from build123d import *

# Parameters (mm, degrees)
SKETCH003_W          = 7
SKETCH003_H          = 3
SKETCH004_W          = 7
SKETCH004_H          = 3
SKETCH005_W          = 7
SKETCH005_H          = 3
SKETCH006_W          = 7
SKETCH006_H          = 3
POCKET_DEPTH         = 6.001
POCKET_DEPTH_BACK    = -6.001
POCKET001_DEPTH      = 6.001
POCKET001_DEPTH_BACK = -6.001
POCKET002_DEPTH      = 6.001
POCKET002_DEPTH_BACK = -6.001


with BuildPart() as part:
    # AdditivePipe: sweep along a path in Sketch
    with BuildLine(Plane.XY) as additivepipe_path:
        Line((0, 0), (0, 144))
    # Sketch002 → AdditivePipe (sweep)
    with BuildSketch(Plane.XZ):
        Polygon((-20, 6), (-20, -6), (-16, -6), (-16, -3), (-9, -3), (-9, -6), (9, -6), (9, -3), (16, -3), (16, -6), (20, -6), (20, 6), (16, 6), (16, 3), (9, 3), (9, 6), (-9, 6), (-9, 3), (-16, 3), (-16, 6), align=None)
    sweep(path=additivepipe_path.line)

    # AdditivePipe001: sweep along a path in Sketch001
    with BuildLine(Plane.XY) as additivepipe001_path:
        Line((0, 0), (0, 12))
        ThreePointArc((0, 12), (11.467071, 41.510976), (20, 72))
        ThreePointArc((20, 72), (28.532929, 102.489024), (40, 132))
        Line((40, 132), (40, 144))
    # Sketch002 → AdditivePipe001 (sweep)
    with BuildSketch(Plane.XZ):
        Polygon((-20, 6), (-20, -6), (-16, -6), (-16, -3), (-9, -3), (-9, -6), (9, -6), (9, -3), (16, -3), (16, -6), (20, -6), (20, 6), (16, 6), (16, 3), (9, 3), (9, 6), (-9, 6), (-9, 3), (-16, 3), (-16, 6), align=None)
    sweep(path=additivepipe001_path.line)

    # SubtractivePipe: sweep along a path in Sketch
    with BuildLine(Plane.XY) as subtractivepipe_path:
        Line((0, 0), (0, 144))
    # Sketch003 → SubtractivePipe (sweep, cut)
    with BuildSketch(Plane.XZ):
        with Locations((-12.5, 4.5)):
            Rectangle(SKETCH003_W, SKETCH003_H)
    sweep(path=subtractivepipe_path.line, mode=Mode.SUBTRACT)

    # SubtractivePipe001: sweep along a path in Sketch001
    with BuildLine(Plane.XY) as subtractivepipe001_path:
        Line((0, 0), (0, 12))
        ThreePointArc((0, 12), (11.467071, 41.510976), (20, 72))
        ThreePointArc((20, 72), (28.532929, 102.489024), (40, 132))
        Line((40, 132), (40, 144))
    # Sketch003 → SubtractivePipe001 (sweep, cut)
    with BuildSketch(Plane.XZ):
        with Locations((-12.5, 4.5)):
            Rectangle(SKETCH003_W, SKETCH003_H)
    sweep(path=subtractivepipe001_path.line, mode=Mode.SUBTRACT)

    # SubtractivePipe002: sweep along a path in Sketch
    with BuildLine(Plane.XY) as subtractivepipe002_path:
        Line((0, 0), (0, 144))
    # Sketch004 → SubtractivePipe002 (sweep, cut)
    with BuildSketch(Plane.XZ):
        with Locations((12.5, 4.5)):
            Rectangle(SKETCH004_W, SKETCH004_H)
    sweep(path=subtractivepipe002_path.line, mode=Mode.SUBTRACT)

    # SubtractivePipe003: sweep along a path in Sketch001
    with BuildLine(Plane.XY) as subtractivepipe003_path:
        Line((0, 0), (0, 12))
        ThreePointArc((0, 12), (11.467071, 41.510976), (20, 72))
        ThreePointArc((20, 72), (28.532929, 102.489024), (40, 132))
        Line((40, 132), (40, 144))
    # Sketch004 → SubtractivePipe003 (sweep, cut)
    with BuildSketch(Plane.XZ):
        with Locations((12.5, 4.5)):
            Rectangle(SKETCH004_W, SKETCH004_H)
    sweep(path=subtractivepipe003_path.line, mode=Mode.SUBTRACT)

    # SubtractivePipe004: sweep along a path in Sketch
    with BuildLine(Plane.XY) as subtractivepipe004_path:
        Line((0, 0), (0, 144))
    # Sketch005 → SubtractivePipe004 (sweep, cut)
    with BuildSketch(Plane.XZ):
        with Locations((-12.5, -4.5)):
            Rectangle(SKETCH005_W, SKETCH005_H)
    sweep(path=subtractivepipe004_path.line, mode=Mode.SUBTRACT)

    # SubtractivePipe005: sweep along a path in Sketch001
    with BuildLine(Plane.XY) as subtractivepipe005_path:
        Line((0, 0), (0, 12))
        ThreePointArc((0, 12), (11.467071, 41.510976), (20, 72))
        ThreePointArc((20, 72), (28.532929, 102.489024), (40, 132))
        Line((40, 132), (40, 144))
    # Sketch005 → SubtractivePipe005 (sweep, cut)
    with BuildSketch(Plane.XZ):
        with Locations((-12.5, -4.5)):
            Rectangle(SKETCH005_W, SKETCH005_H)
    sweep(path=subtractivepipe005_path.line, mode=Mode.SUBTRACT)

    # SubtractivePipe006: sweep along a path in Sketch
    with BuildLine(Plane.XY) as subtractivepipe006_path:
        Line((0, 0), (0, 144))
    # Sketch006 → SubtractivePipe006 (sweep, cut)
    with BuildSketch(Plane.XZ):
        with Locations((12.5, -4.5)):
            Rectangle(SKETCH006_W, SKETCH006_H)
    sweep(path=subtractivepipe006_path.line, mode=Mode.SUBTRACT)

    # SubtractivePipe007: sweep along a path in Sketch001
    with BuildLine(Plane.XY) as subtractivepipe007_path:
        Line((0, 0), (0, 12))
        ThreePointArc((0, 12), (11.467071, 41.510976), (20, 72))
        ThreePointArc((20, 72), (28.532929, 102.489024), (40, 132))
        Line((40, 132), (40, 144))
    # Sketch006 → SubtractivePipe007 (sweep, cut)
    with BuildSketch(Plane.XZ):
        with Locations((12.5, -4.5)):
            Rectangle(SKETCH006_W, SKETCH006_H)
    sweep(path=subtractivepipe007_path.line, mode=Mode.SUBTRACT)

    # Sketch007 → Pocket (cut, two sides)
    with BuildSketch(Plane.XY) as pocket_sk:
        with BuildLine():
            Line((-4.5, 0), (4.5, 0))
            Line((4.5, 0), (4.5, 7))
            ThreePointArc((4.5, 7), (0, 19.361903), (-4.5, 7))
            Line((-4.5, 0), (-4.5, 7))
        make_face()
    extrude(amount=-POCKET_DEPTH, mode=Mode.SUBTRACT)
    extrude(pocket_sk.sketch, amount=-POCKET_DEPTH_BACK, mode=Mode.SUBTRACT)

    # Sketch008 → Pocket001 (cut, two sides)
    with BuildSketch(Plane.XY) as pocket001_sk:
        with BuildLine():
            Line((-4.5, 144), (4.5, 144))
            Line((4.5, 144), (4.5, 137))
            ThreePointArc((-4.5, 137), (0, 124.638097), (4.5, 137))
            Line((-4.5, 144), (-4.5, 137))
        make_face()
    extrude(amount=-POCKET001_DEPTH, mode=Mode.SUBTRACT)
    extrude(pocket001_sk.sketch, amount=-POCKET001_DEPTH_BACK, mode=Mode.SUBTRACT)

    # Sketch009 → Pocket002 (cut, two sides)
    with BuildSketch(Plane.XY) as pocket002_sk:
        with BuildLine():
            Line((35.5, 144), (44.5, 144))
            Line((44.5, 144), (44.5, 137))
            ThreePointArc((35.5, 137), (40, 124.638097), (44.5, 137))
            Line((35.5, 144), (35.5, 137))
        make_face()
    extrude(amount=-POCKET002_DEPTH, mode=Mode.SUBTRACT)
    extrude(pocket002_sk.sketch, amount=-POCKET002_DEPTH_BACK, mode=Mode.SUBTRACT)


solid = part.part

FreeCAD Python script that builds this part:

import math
import FreeCAD as App
import Part
import Sketcher

V = App.Vector

doc = App.newDocument("Part")
body = doc.addObject("PartDesign::Body", "Body")

# Sketch on XZ plane
sketch1 = doc.addObject("Sketcher::SketchObject", "Sketch")
body.addObject(sketch1)
sketch1.AttachmentSupport = (doc.XZ_Plane, [""])
sketch1.MapMode = "FlatFace"
sketch1.addGeometry(Part.LineSegment(V(-20, 6, 0), V(-20, -6, 0)), False)
sketch1.addGeometry(Part.LineSegment(V(-20, -6, 0), V(-16, -6, 0)), False)
sketch1.addGeometry(Part.LineSegment(V(-16, -6, 0), V(-16, -3, 0)), False)
sketch1.addGeometry(Part.LineSegment(V(-16, -3, 0), V(-9, -3, 0)), False)
sketch1.addGeometry(Part.LineSegment(V(-9, -3, 0), V(-9, -6, 0)), False)
sketch1.addGeometry(Part.LineSegment(V(-9, -6, 0), V(9, -6, 0)), False)
sketch1.addGeometry(Part.LineSegment(V(9, -6, 0), V(9, -3, 0)), False)
sketch1.addGeometry(Part.LineSegment(V(9, -3, 0), V(16, -3, 0)), False)
sketch1.addGeometry(Part.LineSegment(V(16, -3, 0), V(16, -6, 0)), False)
sketch1.addGeometry(Part.LineSegment(V(16, -6, 0), V(20, -6, 0)), False)
sketch1.addGeometry(Part.LineSegment(V(20, -6, 0), V(20, 6, 0)), False)
sketch1.addGeometry(Part.LineSegment(V(20, 6, 0), V(16, 6, 0)), False)
sketch1.addGeometry(Part.LineSegment(V(16, 6, 0), V(16, 3, 0)), False)
sketch1.addGeometry(Part.LineSegment(V(16, 3, 0), V(9, 3, 0)), False)
sketch1.addGeometry(Part.LineSegment(V(9, 3, 0), V(9, 6, 0)), False)
sketch1.addGeometry(Part.LineSegment(V(9, 6, 0), V(-9, 6, 0)), False)
sketch1.addGeometry(Part.LineSegment(V(-9, 6, 0), V(-9, 3, 0)), False)
sketch1.addGeometry(Part.LineSegment(V(-9, 3, 0), V(-16, 3, 0)), False)
sketch1.addGeometry(Part.LineSegment(V(-16, 3, 0), V(-16, 6, 0)), False)
sketch1.addGeometry(Part.LineSegment(V(-16, 6, 0), V(-20, 6, 0)), False)
sketch1.addConstraint(Sketcher.Constraint("Coincident", 0, 2, 1, 1))
sketch1.addConstraint(Sketcher.Constraint("Coincident", 1, 2, 2, 1))
sketch1.addConstraint(Sketcher.Constraint("Coincident", 2, 2, 3, 1))
sketch1.addConstraint(Sketcher.Constraint("Coincident", 3, 2, 4, 1))
sketch1.addConstraint(Sketcher.Constraint("Coincident", 4, 2, 5, 1))
sketch1.addConstraint(Sketcher.Constraint("Coincident", 5, 2, 6, 1))
sketch1.addConstraint(Sketcher.Constraint("Coincident", 6, 2, 7, 1))
sketch1.addConstraint(Sketcher.Constraint("Coincident", 7, 2, 8, 1))
sketch1.addConstraint(Sketcher.Constraint("Coincident", 8, 2, 9, 1))
sketch1.addConstraint(Sketcher.Constraint("Coincident", 9, 2, 10, 1))
sketch1.addConstraint(Sketcher.Constraint("Coincident", 10, 2, 11, 1))
sketch1.addConstraint(Sketcher.Constraint("Coincident", 11, 2, 12, 1))
sketch1.addConstraint(Sketcher.Constraint("Coincident", 12, 2, 13, 1))
sketch1.addConstraint(Sketcher.Constraint("Coincident", 13, 2, 14, 1))
sketch1.addConstraint(Sketcher.Constraint("Coincident", 14, 2, 15, 1))
sketch1.addConstraint(Sketcher.Constraint("Coincident", 15, 2, 16, 1))
sketch1.addConstraint(Sketcher.Constraint("Coincident", 16, 2, 17, 1))
sketch1.addConstraint(Sketcher.Constraint("Coincident", 17, 2, 18, 1))
sketch1.addConstraint(Sketcher.Constraint("Coincident", 18, 2, 19, 1))
sketch1.addConstraint(Sketcher.Constraint("Coincident", 19, 2, 0, 1))
sketch1.addConstraint(Sketcher.Constraint("Vertical", 0))
sketch1.addConstraint(Sketcher.Constraint("Horizontal", 1))
sketch1.addConstraint(Sketcher.Constraint("Vertical", 2))
sketch1.addConstraint(Sketcher.Constraint("Horizontal", 3))
sketch1.addConstraint(Sketcher.Constraint("Vertical", 4))
sketch1.addConstraint(Sketcher.Constraint("Horizontal", 5))
sketch1.addConstraint(Sketcher.Constraint("Vertical", 6))
sketch1.addConstraint(Sketcher.Constraint("Horizontal", 7))
sketch1.addConstraint(Sketcher.Constraint("Vertical", 8))
sketch1.addConstraint(Sketcher.Constraint("Horizontal", 9))
sketch1.addConstraint(Sketcher.Constraint("Vertical", 10))
sketch1.addConstraint(Sketcher.Constraint("Horizontal", 11))
sketch1.addConstraint(Sketcher.Constraint("Vertical", 12))
sketch1.addConstraint(Sketcher.Constraint("Horizontal", 13))
sketch1.addConstraint(Sketcher.Constraint("Vertical", 14))
sketch1.addConstraint(Sketcher.Constraint("Horizontal", 15))
sketch1.addConstraint(Sketcher.Constraint("Vertical", 16))
sketch1.addConstraint(Sketcher.Constraint("Horizontal", 17))
sketch1.addConstraint(Sketcher.Constraint("Vertical", 18))
sketch1.addConstraint(Sketcher.Constraint("Horizontal", 19))
sketch1.addConstraint(Sketcher.Constraint("Symmetric", 0, 2, 10, 2, -1, 1))
sketch1.addConstraint(Sketcher.Constraint("Symmetric", 2, 2, 12, 2, -1, 1))
sketch1.addConstraint(Sketcher.Constraint("Symmetric", 4, 2, 14, 2, -1, 1))
sketch1.addConstraint(Sketcher.Constraint("Symmetric", 6, 2, 16, 2, -1, 1))
sketch1.addConstraint(Sketcher.Constraint("Symmetric", 8, 2, 18, 2, -1, 1))
sketch1.addConstraint(Sketcher.Constraint("Symmetric", 3, 2, 6, 2, -2))
sketch1.addConstraint(Sketcher.Constraint("Symmetric", 1, 2, 8, 2, -2))
sketch1.addConstraint(Sketcher.Constraint("Horizontal", 1, 2, 4, 2))
sketch1.addConstraint(Sketcher.Constraint("DistanceX", 1, 1, 1, 2, 4.0))
sketch1.addConstraint(Sketcher.Constraint("DistanceX", 3, 1, 3, 2, 7.0))
sketch1.addConstraint(Sketcher.Constraint("DistanceX", 5, 1, 5, 2, 18.0))
sketch1.addConstraint(Sketcher.Constraint("DistanceY", 0, 2, 0, 1, 12.0))
sketch1.addConstraint(Sketcher.Constraint("DistanceY", 2, 1, 2, 2, 3.0))

# Sketch on XY plane
sketch2 = doc.addObject("Sketcher::SketchObject", "Sketch001")
body.addObject(sketch2)
sketch2.AttachmentSupport = (doc.XY_Plane, [""])
sketch2.MapMode = "FlatFace"
sketch2.addGeometry(Part.LineSegment(V(0, 0, 0), V(0, 144, 0)), False)
sketch2.addConstraint(Sketcher.Constraint("Vertical", 0))
sketch2.addConstraint(Sketcher.Constraint("Coincident", 0, 1, -1, 1))
sketch2.addConstraint(Sketcher.Constraint("DistanceY", 0, 1, 0, 2, 144.0))
doc.recompute()

additivepipe = doc.addObject("PartDesign::AdditivePipe", "AdditivePipe")
body.addObject(additivepipe)
additivepipe.Profile = sketch1
additivepipe.Spine = (sketch2, ["Edge1"])

# Sketch on XZ plane
sketch3 = doc.addObject("Sketcher::SketchObject", "Sketch002")
body.addObject(sketch3)
sketch3.AttachmentSupport = (doc.XZ_Plane, [""])
sketch3.MapMode = "FlatFace"
sketch3.addGeometry(Part.LineSegment(V(-20, 6, 0), V(-20, -6, 0)), False)
sketch3.addGeometry(Part.LineSegment(V(-20, -6, 0), V(-16, -6, 0)), False)
sketch3.addGeometry(Part.LineSegment(V(-16, -6, 0), V(-16, -3, 0)), False)
sketch3.addGeometry(Part.LineSegment(V(-16, -3, 0), V(-9, -3, 0)), False)
sketch3.addGeometry(Part.LineSegment(V(-9, -3, 0), V(-9, -6, 0)), False)
sketch3.addGeometry(Part.LineSegment(V(-9, -6, 0), V(9, -6, 0)), False)
sketch3.addGeometry(Part.LineSegment(V(9, -6, 0), V(9, -3, 0)), False)
sketch3.addGeometry(Part.LineSegment(V(9, -3, 0), V(16, -3, 0)), False)
sketch3.addGeometry(Part.LineSegment(V(16, -3, 0), V(16, -6, 0)), False)
sketch3.addGeometry(Part.LineSegment(V(16, -6, 0), V(20, -6, 0)), False)
sketch3.addGeometry(Part.LineSegment(V(20, -6, 0), V(20, 6, 0)), False)
sketch3.addGeometry(Part.LineSegment(V(20, 6, 0), V(16, 6, 0)), False)
sketch3.addGeometry(Part.LineSegment(V(16, 6, 0), V(16, 3, 0)), False)
sketch3.addGeometry(Part.LineSegment(V(16, 3, 0), V(9, 3, 0)), False)
sketch3.addGeometry(Part.LineSegment(V(9, 3, 0), V(9, 6, 0)), False)
sketch3.addGeometry(Part.LineSegment(V(9, 6, 0), V(-9, 6, 0)), False)
sketch3.addGeometry(Part.LineSegment(V(-9, 6, 0), V(-9, 3, 0)), False)
sketch3.addGeometry(Part.LineSegment(V(-9, 3, 0), V(-16, 3, 0)), False)
sketch3.addGeometry(Part.LineSegment(V(-16, 3, 0), V(-16, 6, 0)), False)
sketch3.addGeometry(Part.LineSegment(V(-16, 6, 0), V(-20, 6, 0)), False)
sketch3.addConstraint(Sketcher.Constraint("Coincident", 0, 2, 1, 1))
sketch3.addConstraint(Sketcher.Constraint("Coincident", 1, 2, 2, 1))
sketch3.addConstraint(Sketcher.Constraint("Coincident", 2, 2, 3, 1))
sketch3.addConstraint(Sketcher.Constraint("Coincident", 3, 2, 4, 1))
sketch3.addConstraint(Sketcher.Constraint("Coincident", 4, 2, 5, 1))
sketch3.addConstraint(Sketcher.Constraint("Coincident", 5, 2, 6, 1))
sketch3.addConstraint(Sketcher.Constraint("Coincident", 6, 2, 7, 1))
sketch3.addConstraint(Sketcher.Constraint("Coincident", 7, 2, 8, 1))
sketch3.addConstraint(Sketcher.Constraint("Coincident", 8, 2, 9, 1))
sketch3.addConstraint(Sketcher.Constraint("Coincident", 9, 2, 10, 1))
sketch3.addConstraint(Sketcher.Constraint("Coincident", 10, 2, 11, 1))
sketch3.addConstraint(Sketcher.Constraint("Coincident", 11, 2, 12, 1))
sketch3.addConstraint(Sketcher.Constraint("Coincident", 12, 2, 13, 1))
sketch3.addConstraint(Sketcher.Constraint("Coincident", 13, 2, 14, 1))
sketch3.addConstraint(Sketcher.Constraint("Coincident", 14, 2, 15, 1))
sketch3.addConstraint(Sketcher.Constraint("Coincident", 15, 2, 16, 1))
sketch3.addConstraint(Sketcher.Constraint("Coincident", 16, 2, 17, 1))
sketch3.addConstraint(Sketcher.Constraint("Coincident", 17, 2, 18, 1))
sketch3.addConstraint(Sketcher.Constraint("Coincident", 18, 2, 19, 1))
sketch3.addConstraint(Sketcher.Constraint("Coincident", 19, 2, 0, 1))
sketch3.addConstraint(Sketcher.Constraint("Vertical", 0))
sketch3.addConstraint(Sketcher.Constraint("Horizontal", 1))
sketch3.addConstraint(Sketcher.Constraint("Vertical", 2))
sketch3.addConstraint(Sketcher.Constraint("Horizontal", 3))
sketch3.addConstraint(Sketcher.Constraint("Vertical", 4))
sketch3.addConstraint(Sketcher.Constraint("Horizontal", 5))
sketch3.addConstraint(Sketcher.Constraint("Vertical", 6))
sketch3.addConstraint(Sketcher.Constraint("Horizontal", 7))
sketch3.addConstraint(Sketcher.Constraint("Vertical", 8))
sketch3.addConstraint(Sketcher.Constraint("Horizontal", 9))
sketch3.addConstraint(Sketcher.Constraint("Vertical", 10))
sketch3.addConstraint(Sketcher.Constraint("Horizontal", 11))
sketch3.addConstraint(Sketcher.Constraint("Vertical", 12))
sketch3.addConstraint(Sketcher.Constraint("Horizontal", 13))
sketch3.addConstraint(Sketcher.Constraint("Vertical", 14))
sketch3.addConstraint(Sketcher.Constraint("Horizontal", 15))
sketch3.addConstraint(Sketcher.Constraint("Vertical", 16))
sketch3.addConstraint(Sketcher.Constraint("Horizontal", 17))
sketch3.addConstraint(Sketcher.Constraint("Vertical", 18))
sketch3.addConstraint(Sketcher.Constraint("Horizontal", 19))
sketch3.addConstraint(Sketcher.Constraint("Symmetric", 0, 2, 10, 2, -1, 1))
sketch3.addConstraint(Sketcher.Constraint("Symmetric", 2, 2, 12, 2, -1, 1))
sketch3.addConstraint(Sketcher.Constraint("Symmetric", 4, 2, 14, 2, -1, 1))
sketch3.addConstraint(Sketcher.Constraint("Symmetric", 6, 2, 16, 2, -1, 1))
sketch3.addConstraint(Sketcher.Constraint("Symmetric", 8, 2, 18, 2, -1, 1))
sketch3.addConstraint(Sketcher.Constraint("Symmetric", 3, 2, 6, 2, -2))
sketch3.addConstraint(Sketcher.Constraint("Symmetric", 1, 2, 8, 2, -2))
sketch3.addConstraint(Sketcher.Constraint("Horizontal", 1, 2, 4, 2))
sketch3.addConstraint(Sketcher.Constraint("DistanceX", 1, 1, 1, 2, 4.0))
sketch3.addConstraint(Sketcher.Constraint("DistanceX", 3, 1, 3, 2, 7.0))
sketch3.addConstraint(Sketcher.Constraint("DistanceX", 5, 1, 5, 2, 18.0))
sketch3.addConstraint(Sketcher.Constraint("DistanceY", 0, 2, 0, 1, 12.0))
sketch3.addConstraint(Sketcher.Constraint("DistanceY", 2, 1, 2, 2, 3.0))

# Sketch on XY plane
sketch4 = doc.addObject("Sketcher::SketchObject", "Sketch003")
body.addObject(sketch4)
sketch4.AttachmentSupport = (doc.XY_Plane, [""])
sketch4.MapMode = "FlatFace"
sketch4.addGeometry(Part.LineSegment(V(0, 0, 0), V(0, 12, 0)), False)
sketch4.addGeometry(Part.ArcOfCircle(Part.Circle(V(-296, 144, 0), V(0, 0, 1), 324), math.radians(-24.03), math.radians(-12.84)), False)
sketch4.addGeometry(Part.ArcOfCircle(Part.Circle(V(336, 0, 0), V(0, 0, 1), 324), math.radians(155.97), math.radians(167.16)), False)
sketch4.addGeometry(Part.LineSegment(V(40, 132, 0), V(40, 144, 0)), False)
sketch4.addConstraint(Sketcher.Constraint("Coincident", 0, 2, 1, 1))
sketch4.addConstraint(Sketcher.Constraint("Tangent", 1, 2, 2, 2))
sketch4.addConstraint(Sketcher.Constraint("Coincident", 2, 1, 3, 1))
sketch4.addConstraint(Sketcher.Constraint("Vertical", 0))
sketch4.addConstraint(Sketcher.Constraint("Vertical", 3))
sketch4.addConstraint(Sketcher.Constraint("Coincident", 0, 1, -1, 1))
sketch4.addConstraint(Sketcher.Constraint("Equal", 1, 2))
sketch4.addConstraint(Sketcher.Constraint("Equal", 0, 3))
sketch4.addConstraint(Sketcher.Constraint("DistanceY", 0, 1, 0, 2, 12.0))
sketch4.addConstraint(Sketcher.Constraint("DistanceX", -1, 1, 1, 2, 20.0))
sketch4.addConstraint(Sketcher.Constraint("DistanceX", -1, 1, 2, 1, 40.0))
sketch4.addConstraint(Sketcher.Constraint("DistanceY", -1, 1, 3, 2, 144.0))
sketch4.addConstraint(Sketcher.Constraint("Radius", 1, 324.098818))
doc.recompute()

additivepipe2 = doc.addObject("PartDesign::AdditivePipe", "AdditivePipe001")
body.addObject(additivepipe2)
additivepipe2.Profile = sketch3
additivepipe2.Spine = (sketch4, ["Edge1", "Edge2", "Edge3", "Edge4"])

# Sketch on XZ plane
sketch5 = doc.addObject("Sketcher::SketchObject", "Sketch004")
body.addObject(sketch5)
sketch5.AttachmentSupport = (doc.XZ_Plane, [""])
sketch5.MapMode = "FlatFace"
sketch5.addGeometry(Part.LineSegment(V(-16, 6, 0), V(-16, 3, 0)), False)
sketch5.addGeometry(Part.LineSegment(V(-16, 3, 0), V(-9, 3, 0)), False)
sketch5.addGeometry(Part.LineSegment(V(-9, 3, 0), V(-9, 6, 0)), False)
sketch5.addGeometry(Part.LineSegment(V(-9, 6, 0), V(-16, 6, 0)), False)
sketch5.addConstraint(Sketcher.Constraint("Coincident", 0, 2, 1, 1))
sketch5.addConstraint(Sketcher.Constraint("Coincident", 1, 2, 2, 1))
sketch5.addConstraint(Sketcher.Constraint("Coincident", 2, 2, 3, 1))
sketch5.addConstraint(Sketcher.Constraint("Coincident", 3, 2, 0, 1))
sketch5.addConstraint(Sketcher.Constraint("Vertical", 0))
sketch5.addConstraint(Sketcher.Constraint("Horizontal", 1))
sketch5.addConstraint(Sketcher.Constraint("Vertical", 2))
sketch5.addConstraint(Sketcher.Constraint("Horizontal", 3))
sketch5.addConstraint(Sketcher.Constraint("DistanceX", 1, 1, 1, 2, 7.0))
sketch5.addConstraint(Sketcher.Constraint("DistanceY", 0, 2, 0, 1, 3.0))
sketch5.addConstraint(Sketcher.Constraint("DistanceX", 0, 2, -1, 1, 16.0))
sketch5.addConstraint(Sketcher.Constraint("DistanceY", -1, 1, 0, 2, 3.0))

# Sketch on XY plane
sketch6 = doc.addObject("Sketcher::SketchObject", "Sketch005")
body.addObject(sketch6)
sketch6.AttachmentSupport = (doc.XY_Plane, [""])
sketch6.MapMode = "FlatFace"
sketch6.addGeometry(Part.LineSegment(V(0, 0, 0), V(0, 144, 0)), False)
sketch6.addConstraint(Sketcher.Constraint("Vertical", 0))
sketch6.addConstraint(Sketcher.Constraint("Coincident", 0, 1, -1, 1))
sketch6.addConstraint(Sketcher.Constraint("DistanceY", 0, 1, 0, 2, 144.0))
doc.recompute()

subtractivepipe = doc.addObject("PartDesign::SubtractivePipe", "SubtractivePipe")
body.addObject(subtractivepipe)
subtractivepipe.Profile = sketch5
subtractivepipe.Spine = (sketch6, ["Edge1"])

# Sketch on XZ plane
sketch7 = doc.addObject("Sketcher::SketchObject", "Sketch006")
body.addObject(sketch7)
sketch7.AttachmentSupport = (doc.XZ_Plane, [""])
sketch7.MapMode = "FlatFace"
sketch7.addGeometry(Part.LineSegment(V(-16, 6, 0), V(-16, 3, 0)), False)
sketch7.addGeometry(Part.LineSegment(V(-16, 3, 0), V(-9, 3, 0)), False)
sketch7.addGeometry(Part.LineSegment(V(-9, 3, 0), V(-9, 6, 0)), False)
sketch7.addGeometry(Part.LineSegment(V(-9, 6, 0), V(-16, 6, 0)), False)
sketch7.addConstraint(Sketcher.Constraint("Coincident", 0, 2, 1, 1))
sketch7.addConstraint(Sketcher.Constraint("Coincident", 1, 2, 2, 1))
sketch7.addConstraint(Sketcher.Constraint("Coincident", 2, 2, 3, 1))
sketch7.addConstraint(Sketcher.Constraint("Coincident", 3, 2, 0, 1))
sketch7.addConstraint(Sketcher.Constraint("Vertical", 0))
sketch7.addConstraint(Sketcher.Constraint("Horizontal", 1))
sketch7.addConstraint(Sketcher.Constraint("Vertical", 2))
sketch7.addConstraint(Sketcher.Constraint("Horizontal", 3))
sketch7.addConstraint(Sketcher.Constraint("DistanceX", 1, 1, 1, 2, 7.0))
sketch7.addConstraint(Sketcher.Constraint("DistanceY", 0, 2, 0, 1, 3.0))
sketch7.addConstraint(Sketcher.Constraint("DistanceX", 0, 2, -1, 1, 16.0))
sketch7.addConstraint(Sketcher.Constraint("DistanceY", -1, 1, 0, 2, 3.0))

# Sketch on XY plane
sketch8 = doc.addObject("Sketcher::SketchObject", "Sketch007")
body.addObject(sketch8)
sketch8.AttachmentSupport = (doc.XY_Plane, [""])
sketch8.MapMode = "FlatFace"
sketch8.addGeometry(Part.LineSegment(V(0, 0, 0), V(0, 12, 0)), False)
sketch8.addGeometry(Part.ArcOfCircle(Part.Circle(V(-296, 144, 0), V(0, 0, 1), 324), math.radians(-24.03), math.radians(-12.84)), False)
sketch8.addGeometry(Part.ArcOfCircle(Part.Circle(V(336, 0, 0), V(0, 0, 1), 324), math.radians(155.97), math.radians(167.16)), False)
sketch8.addGeometry(Part.LineSegment(V(40, 132, 0), V(40, 144, 0)), False)
sketch8.addConstraint(Sketcher.Constraint("Coincident", 0, 2, 1, 1))
sketch8.addConstraint(Sketcher.Constraint("Tangent", 1, 2, 2, 2))
sketch8.addConstraint(Sketcher.Constraint("Coincident", 2, 1, 3, 1))
sketch8.addConstraint(Sketcher.Constraint("Vertical", 0))
sketch8.addConstraint(Sketcher.Constraint("Vertical", 3))
sketch8.addConstraint(Sketcher.Constraint("Coincident", 0, 1, -1, 1))
sketch8.addConstraint(Sketcher.Constraint("Equal", 1, 2))
sketch8.addConstraint(Sketcher.Constraint("Equal", 0, 3))
sketch8.addConstraint(Sketcher.Constraint("DistanceY", 0, 1, 0, 2, 12.0))
sketch8.addConstraint(Sketcher.Constraint("DistanceX", -1, 1, 1, 2, 20.0))
sketch8.addConstraint(Sketcher.Constraint("DistanceX", -1, 1, 2, 1, 40.0))
sketch8.addConstraint(Sketcher.Constraint("DistanceY", -1, 1, 3, 2, 144.0))
sketch8.addConstraint(Sketcher.Constraint("Radius", 1, 324.098818))
doc.recompute()

subtractivepipe2 = doc.addObject("PartDesign::SubtractivePipe", "SubtractivePipe001")
body.addObject(subtractivepipe2)
subtractivepipe2.Profile = sketch7
subtractivepipe2.Spine = (sketch8, ["Edge1", "Edge2", "Edge3", "Edge4"])

# Sketch on XZ plane
sketch9 = doc.addObject("Sketcher::SketchObject", "Sketch008")
body.addObject(sketch9)
sketch9.AttachmentSupport = (doc.XZ_Plane, [""])
sketch9.MapMode = "FlatFace"
sketch9.addGeometry(Part.LineSegment(V(9, 6, 0), V(9, 3, 0)), False)
sketch9.addGeometry(Part.LineSegment(V(9, 3, 0), V(16, 3, 0)), False)
sketch9.addGeometry(Part.LineSegment(V(16, 3, 0), V(16, 6, 0)), False)
sketch9.addGeometry(Part.LineSegment(V(16, 6, 0), V(9, 6, 0)), False)
sketch9.addConstraint(Sketcher.Constraint("Coincident", 0, 2, 1, 1))
sketch9.addConstraint(Sketcher.Constraint("Coincident", 1, 2, 2, 1))
sketch9.addConstraint(Sketcher.Constraint("Coincident", 2, 2, 3, 1))
sketch9.addConstraint(Sketcher.Constraint("Coincident", 3, 2, 0, 1))
sketch9.addConstraint(Sketcher.Constraint("Vertical", 0))
sketch9.addConstraint(Sketcher.Constraint("Horizontal", 1))
sketch9.addConstraint(Sketcher.Constraint("Vertical", 2))
sketch9.addConstraint(Sketcher.Constraint("Horizontal", 3))
sketch9.addConstraint(Sketcher.Constraint("DistanceX", 1, 1, 1, 2, 7.0))
sketch9.addConstraint(Sketcher.Constraint("DistanceY", 0, 2, 0, 1, 3.0))
sketch9.addConstraint(Sketcher.Constraint("DistanceX", -1, 1, 0, 2, 9.0))
sketch9.addConstraint(Sketcher.Constraint("DistanceY", -1, 1, 0, 2, 3.0))

# Sketch on XY plane
sketch10 = doc.addObject("Sketcher::SketchObject", "Sketch009")
body.addObject(sketch10)
sketch10.AttachmentSupport = (doc.XY_Plane, [""])
sketch10.MapMode = "FlatFace"
sketch10.addGeometry(Part.LineSegment(V(0, 0, 0), V(0, 144, 0)), False)
sketch10.addConstraint(Sketcher.Constraint("Vertical", 0))
sketch10.addConstraint(Sketcher.Constraint("Coincident", 0, 1, -1, 1))
sketch10.addConstraint(Sketcher.Constraint("DistanceY", 0, 1, 0, 2, 144.0))
doc.recompute()

subtractivepipe3 = doc.addObject("PartDesign::SubtractivePipe", "SubtractivePipe002")
body.addObject(subtractivepipe3)
subtractivepipe3.Profile = sketch9
subtractivepipe3.Spine = (sketch10, ["Edge1"])

# Sketch on XZ plane
sketch11 = doc.addObject("Sketcher::SketchObject", "Sketch010")
body.addObject(sketch11)
sketch11.AttachmentSupport = (doc.XZ_Plane, [""])
sketch11.MapMode = "FlatFace"
sketch11.addGeometry(Part.LineSegment(V(9, 6, 0), V(9, 3, 0)), False)
sketch11.addGeometry(Part.LineSegment(V(9, 3, 0), V(16, 3, 0)), False)
sketch11.addGeometry(Part.LineSegment(V(16, 3, 0), V(16, 6, 0)), False)
sketch11.addGeometry(Part.LineSegment(V(16, 6, 0), V(9, 6, 0)), False)
sketch11.addConstraint(Sketcher.Constraint("Coincident", 0, 2, 1, 1))
sketch11.addConstraint(Sketcher.Constraint("Coincident", 1, 2, 2, 1))
sketch11.addConstraint(Sketcher.Constraint("Coincident", 2, 2, 3, 1))
sketch11.addConstraint(Sketcher.Constraint("Coincident", 3, 2, 0, 1))
sketch11.addConstraint(Sketcher.Constraint("Vertical", 0))
sketch11.addConstraint(Sketcher.Constraint("Horizontal", 1))
sketch11.addConstraint(Sketcher.Constraint("Vertical", 2))
sketch11.addConstraint(Sketcher.Constraint("Horizontal", 3))
sketch11.addConstraint(Sketcher.Constraint("DistanceX", 1, 1, 1, 2, 7.0))
sketch11.addConstraint(Sketcher.Constraint("DistanceY", 0, 2, 0, 1, 3.0))
sketch11.addConstraint(Sketcher.Constraint("DistanceX", -1, 1, 0, 2, 9.0))
sketch11.addConstraint(Sketcher.Constraint("DistanceY", -1, 1, 0, 2, 3.0))

# Sketch on XY plane
sketch12 = doc.addObject("Sketcher::SketchObject", "Sketch011")
body.addObject(sketch12)
sketch12.AttachmentSupport = (doc.XY_Plane, [""])
sketch12.MapMode = "FlatFace"
sketch12.addGeometry(Part.LineSegment(V(0, 0, 0), V(0, 12, 0)), False)
sketch12.addGeometry(Part.ArcOfCircle(Part.Circle(V(-296, 144, 0), V(0, 0, 1), 324), math.radians(-24.03), math.radians(-12.84)), False)
sketch12.addGeometry(Part.ArcOfCircle(Part.Circle(V(336, 0, 0), V(0, 0, 1), 324), math.radians(155.97), math.radians(167.16)), False)
sketch12.addGeometry(Part.LineSegment(V(40, 132, 0), V(40, 144, 0)), False)
sketch12.addConstraint(Sketcher.Constraint("Coincident", 0, 2, 1, 1))
sketch12.addConstraint(Sketcher.Constraint("Tangent", 1, 2, 2, 2))
sketch12.addConstraint(Sketcher.Constraint("Coincident", 2, 1, 3, 1))
sketch12.addConstraint(Sketcher.Constraint("Vertical", 0))
sketch12.addConstraint(Sketcher.Constraint("Vertical", 3))
sketch12.addConstraint(Sketcher.Constraint("Coincident", 0, 1, -1, 1))
sketch12.addConstraint(Sketcher.Constraint("Equal", 1, 2))
sketch12.addConstraint(Sketcher.Constraint("Equal", 0, 3))
sketch12.addConstraint(Sketcher.Constraint("DistanceY", 0, 1, 0, 2, 12.0))
sketch12.addConstraint(Sketcher.Constraint("DistanceX", -1, 1, 1, 2, 20.0))
sketch12.addConstraint(Sketcher.Constraint("DistanceX", -1, 1, 2, 1, 40.0))
sketch12.addConstraint(Sketcher.Constraint("DistanceY", -1, 1, 3, 2, 144.0))
sketch12.addConstraint(Sketcher.Constraint("Radius", 1, 324.098818))
doc.recompute()

subtractivepipe4 = doc.addObject("PartDesign::SubtractivePipe", "SubtractivePipe003")
body.addObject(subtractivepipe4)
subtractivepipe4.Profile = sketch11
subtractivepipe4.Spine = (sketch12, ["Edge1", "Edge2", "Edge3", "Edge4"])

# Sketch on XZ plane
sketch13 = doc.addObject("Sketcher::SketchObject", "Sketch012")
body.addObject(sketch13)
sketch13.AttachmentSupport = (doc.XZ_Plane, [""])
sketch13.MapMode = "FlatFace"
sketch13.addGeometry(Part.LineSegment(V(-16, -3, 0), V(-16, -6, 0)), False)
sketch13.addGeometry(Part.LineSegment(V(-16, -6, 0), V(-9, -6, 0)), False)
sketch13.addGeometry(Part.LineSegment(V(-9, -6, 0), V(-9, -3, 0)), False)
sketch13.addGeometry(Part.LineSegment(V(-9, -3, 0), V(-16, -3, 0)), False)
sketch13.addConstraint(Sketcher.Constraint("Coincident", 0, 2, 1, 1))
sketch13.addConstraint(Sketcher.Constraint("Coincident", 1, 2, 2, 1))
sketch13.addConstraint(Sketcher.Constraint("Coincident", 2, 2, 3, 1))
sketch13.addConstraint(Sketcher.Constraint("Coincident", 3, 2, 0, 1))
sketch13.addConstraint(Sketcher.Constraint("Vertical", 0))
sketch13.addConstraint(Sketcher.Constraint("Horizontal", 1))
sketch13.addConstraint(Sketcher.Constraint("Vertical", 2))
sketch13.addConstraint(Sketcher.Constraint("Horizontal", 3))
sketch13.addConstraint(Sketcher.Constraint("DistanceX", 1, 1, 1, 2, 7.0))
sketch13.addConstraint(Sketcher.Constraint("DistanceY", 0, 2, 0, 1, 3.0))
sketch13.addConstraint(Sketcher.Constraint("DistanceX", 0, 2, -1, 1, 16.0))
sketch13.addConstraint(Sketcher.Constraint("DistanceY", 0, 2, -1, 1, 6.0))

# Sketch on XY plane
sketch14 = doc.addObject("Sketcher::SketchObject", "Sketch013")
body.addObject(sketch14)
sketch14.AttachmentSupport = (doc.XY_Plane, [""])
sketch14.MapMode = "FlatFace"
sketch14.addGeometry(Part.LineSegment(V(0, 0, 0), V(0, 144, 0)), False)
sketch14.addConstraint(Sketcher.Constraint("Vertical", 0))
sketch14.addConstraint(Sketcher.Constraint("Coincident", 0, 1, -1, 1))
sketch14.addConstraint(Sketcher.Constraint("DistanceY", 0, 1, 0, 2, 144.0))
doc.recompute()

subtractivepipe5 = doc.addObject("PartDesign::SubtractivePipe", "SubtractivePipe004")
body.addObject(subtractivepipe5)
subtractivepipe5.Profile = sketch13
subtractivepipe5.Spine = (sketch14, ["Edge1"])

# Sketch on XZ plane
sketch15 = doc.addObject("Sketcher::SketchObject", "Sketch014")
body.addObject(sketch15)
sketch15.AttachmentSupport = (doc.XZ_Plane, [""])
sketch15.MapMode = "FlatFace"
sketch15.addGeometry(Part.LineSegment(V(-16, -3, 0), V(-16, -6, 0)), False)
sketch15.addGeometry(Part.LineSegment(V(-16, -6, 0), V(-9, -6, 0)), False)
sketch15.addGeometry(Part.LineSegment(V(-9, -6, 0), V(-9, -3, 0)), False)
sketch15.addGeometry(Part.LineSegment(V(-9, -3, 0), V(-16, -3, 0)), False)
sketch15.addConstraint(Sketcher.Constraint("Coincident", 0, 2, 1, 1))
sketch15.addConstraint(Sketcher.Constraint("Coincident", 1, 2, 2, 1))
sketch15.addConstraint(Sketcher.Constraint("Coincident", 2, 2, 3, 1))
sketch15.addConstraint(Sketcher.Constraint("Coincident", 3, 2, 0, 1))
sketch15.addConstraint(Sketcher.Constraint("Vertical", 0))
sketch15.addConstraint(Sketcher.Constraint("Horizontal", 1))
sketch15.addConstraint(Sketcher.Constraint("Vertical", 2))
sketch15.addConstraint(Sketcher.Constraint("Horizontal", 3))
sketch15.addConstraint(Sketcher.Constraint("DistanceX", 1, 1, 1, 2, 7.0))
sketch15.addConstraint(Sketcher.Constraint("DistanceY", 0, 2, 0, 1, 3.0))
sketch15.addConstraint(Sketcher.Constraint("DistanceX", 0, 2, -1, 1, 16.0))
sketch15.addConstraint(Sketcher.Constraint("DistanceY", 0, 2, -1, 1, 6.0))

# Sketch on XY plane
sketch16 = doc.addObject("Sketcher::SketchObject", "Sketch015")
body.addObject(sketch16)
sketch16.AttachmentSupport = (doc.XY_Plane, [""])
sketch16.MapMode = "FlatFace"
sketch16.addGeometry(Part.LineSegment(V(0, 0, 0), V(0, 12, 0)), False)
sketch16.addGeometry(Part.ArcOfCircle(Part.Circle(V(-296, 144, 0), V(0, 0, 1), 324), math.radians(-24.03), math.radians(-12.84)), False)
sketch16.addGeometry(Part.ArcOfCircle(Part.Circle(V(336, 0, 0), V(0, 0, 1), 324), math.radians(155.97), math.radians(167.16)), False)
sketch16.addGeometry(Part.LineSegment(V(40, 132, 0), V(40, 144, 0)), False)
sketch16.addConstraint(Sketcher.Constraint("Coincident", 0, 2, 1, 1))
sketch16.addConstraint(Sketcher.Constraint("Tangent", 1, 2, 2, 2))
sketch16.addConstraint(Sketcher.Constraint("Coincident", 2, 1, 3, 1))
sketch16.addConstraint(Sketcher.Constraint("Vertical", 0))
sketch16.addConstraint(Sketcher.Constraint("Vertical", 3))
sketch16.addConstraint(Sketcher.Constraint("Coincident", 0, 1, -1, 1))
sketch16.addConstraint(Sketcher.Constraint("Equal", 1, 2))
sketch16.addConstraint(Sketcher.Constraint("Equal", 0, 3))
sketch16.addConstraint(Sketcher.Constraint("DistanceY", 0, 1, 0, 2, 12.0))
sketch16.addConstraint(Sketcher.Constraint("DistanceX", -1, 1, 1, 2, 20.0))
sketch16.addConstraint(Sketcher.Constraint("DistanceX", -1, 1, 2, 1, 40.0))
sketch16.addConstraint(Sketcher.Constraint("DistanceY", -1, 1, 3, 2, 144.0))
sketch16.addConstraint(Sketcher.Constraint("Radius", 1, 324.098818))
doc.recompute()

subtractivepipe6 = doc.addObject("PartDesign::SubtractivePipe", "SubtractivePipe005")
body.addObject(subtractivepipe6)
subtractivepipe6.Profile = sketch15
subtractivepipe6.Spine = (sketch16, ["Edge1", "Edge2", "Edge3", "Edge4"])

# Sketch on XZ plane
sketch17 = doc.addObject("Sketcher::SketchObject", "Sketch016")
body.addObject(sketch17)
sketch17.AttachmentSupport = (doc.XZ_Plane, [""])
sketch17.MapMode = "FlatFace"
sketch17.addGeometry(Part.LineSegment(V(9, -3, 0), V(9, -6, 0)), False)
sketch17.addGeometry(Part.LineSegment(V(9, -6, 0), V(16, -6, 0)), False)
sketch17.addGeometry(Part.LineSegment(V(16, -6, 0), V(16, -3, 0)), False)
sketch17.addGeometry(Part.LineSegment(V(16, -3, 0), V(9, -3, 0)), False)
sketch17.addConstraint(Sketcher.Constraint("Coincident", 0, 2, 1, 1))
sketch17.addConstraint(Sketcher.Constraint("Coincident", 1, 2, 2, 1))
sketch17.addConstraint(Sketcher.Constraint("Coincident", 2, 2, 3, 1))
sketch17.addConstraint(Sketcher.Constraint("Coincident", 3, 2, 0, 1))
sketch17.addConstraint(Sketcher.Constraint("Vertical", 0))
sketch17.addConstraint(Sketcher.Constraint("Horizontal", 1))
sketch17.addConstraint(Sketcher.Constraint("Vertical", 2))
sketch17.addConstraint(Sketcher.Constraint("Horizontal", 3))
sketch17.addConstraint(Sketcher.Constraint("DistanceX", 1, 1, 1, 2, 7.0))
sketch17.addConstraint(Sketcher.Constraint("DistanceY", 0, 2, 0, 1, 3.0))
sketch17.addConstraint(Sketcher.Constraint("DistanceX", -1, 1, 0, 2, 9.0))
sketch17.addConstraint(Sketcher.Constraint("DistanceY", 0, 2, -1, 1, 6.0))

# Sketch on XY plane
sketch18 = doc.addObject("Sketcher::SketchObject", "Sketch017")
body.addObject(sketch18)
sketch18.AttachmentSupport = (doc.XY_Plane, [""])
sketch18.MapMode = "FlatFace"
sketch18.addGeometry(Part.LineSegment(V(0, 0, 0), V(0, 144, 0)), False)
sketch18.addConstraint(Sketcher.Constraint("Vertical", 0))
sketch18.addConstraint(Sketcher.Constraint("Coincident", 0, 1, -1, 1))
sketch18.addConstraint(Sketcher.Constraint("DistanceY", 0, 1, 0, 2, 144.0))
doc.recompute()

subtractivepipe7 = doc.addObject("PartDesign::SubtractivePipe", "SubtractivePipe006")
body.addObject(subtractivepipe7)
subtractivepipe7.Profile = sketch17
subtractivepipe7.Spine = (sketch18, ["Edge1"])

# Sketch on XZ plane
sketch19 = doc.addObject("Sketcher::SketchObject", "Sketch018")
body.addObject(sketch19)
sketch19.AttachmentSupport = (doc.XZ_Plane, [""])
sketch19.MapMode = "FlatFace"
sketch19.addGeometry(Part.LineSegment(V(9, -3, 0), V(9, -6, 0)), False)
sketch19.addGeometry(Part.LineSegment(V(9, -6, 0), V(16, -6, 0)), False)
sketch19.addGeometry(Part.LineSegment(V(16, -6, 0), V(16, -3, 0)), False)
sketch19.addGeometry(Part.LineSegment(V(16, -3, 0), V(9, -3, 0)), False)
sketch19.addConstraint(Sketcher.Constraint("Coincident", 0, 2, 1, 1))
sketch19.addConstraint(Sketcher.Constraint("Coincident", 1, 2, 2, 1))
sketch19.addConstraint(Sketcher.Constraint("Coincident", 2, 2, 3, 1))
sketch19.addConstraint(Sketcher.Constraint("Coincident", 3, 2, 0, 1))
sketch19.addConstraint(Sketcher.Constraint("Vertical", 0))
sketch19.addConstraint(Sketcher.Constraint("Horizontal", 1))
sketch19.addConstraint(Sketcher.Constraint("Vertical", 2))
sketch19.addConstraint(Sketcher.Constraint("Horizontal", 3))
sketch19.addConstraint(Sketcher.Constraint("DistanceX", 1, 1, 1, 2, 7.0))
sketch19.addConstraint(Sketcher.Constraint("DistanceY", 0, 2, 0, 1, 3.0))
sketch19.addConstraint(Sketcher.Constraint("DistanceX", -1, 1, 0, 2, 9.0))
sketch19.addConstraint(Sketcher.Constraint("DistanceY", 0, 2, -1, 1, 6.0))

# Sketch on XY plane
sketch20 = doc.addObject("Sketcher::SketchObject", "Sketch019")
body.addObject(sketch20)
sketch20.AttachmentSupport = (doc.XY_Plane, [""])
sketch20.MapMode = "FlatFace"
sketch20.addGeometry(Part.LineSegment(V(0, 0, 0), V(0, 12, 0)), False)
sketch20.addGeometry(Part.ArcOfCircle(Part.Circle(V(-296, 144, 0), V(0, 0, 1), 324), math.radians(-24.03), math.radians(-12.84)), False)
sketch20.addGeometry(Part.ArcOfCircle(Part.Circle(V(336, 0, 0), V(0, 0, 1), 324), math.radians(155.97), math.radians(167.16)), False)
sketch20.addGeometry(Part.LineSegment(V(40, 132, 0), V(40, 144, 0)), False)
sketch20.addConstraint(Sketcher.Constraint("Coincident", 0, 2, 1, 1))
sketch20.addConstraint(Sketcher.Constraint("Tangent", 1, 2, 2, 2))
sketch20.addConstraint(Sketcher.Constraint("Coincident", 2, 1, 3, 1))
sketch20.addConstraint(Sketcher.Constraint("Vertical", 0))
sketch20.addConstraint(Sketcher.Constraint("Vertical", 3))
sketch20.addConstraint(Sketcher.Constraint("Coincident", 0, 1, -1, 1))
sketch20.addConstraint(Sketcher.Constraint("Equal", 1, 2))
sketch20.addConstraint(Sketcher.Constraint("Equal", 0, 3))
sketch20.addConstraint(Sketcher.Constraint("DistanceY", 0, 1, 0, 2, 12.0))
sketch20.addConstraint(Sketcher.Constraint("DistanceX", -1, 1, 1, 2, 20.0))
sketch20.addConstraint(Sketcher.Constraint("DistanceX", -1, 1, 2, 1, 40.0))
sketch20.addConstraint(Sketcher.Constraint("DistanceY", -1, 1, 3, 2, 144.0))
sketch20.addConstraint(Sketcher.Constraint("Radius", 1, 324.098818))
doc.recompute()

subtractivepipe8 = doc.addObject("PartDesign::SubtractivePipe", "SubtractivePipe007")
body.addObject(subtractivepipe8)
subtractivepipe8.Profile = sketch19
subtractivepipe8.Spine = (sketch20, ["Edge1", "Edge2", "Edge3", "Edge4"])

# Sketch on XY plane
sketch21 = doc.addObject("Sketcher::SketchObject", "Sketch020")
body.addObject(sketch21)
sketch21.AttachmentSupport = (doc.XY_Plane, [""])
sketch21.MapMode = "FlatFace"
sketch21.addGeometry(Part.LineSegment(V(-4, 0, 0), V(4, 0, 0)), False)
sketch21.addGeometry(Part.LineSegment(V(4, 0, 0), V(4, 7, 0)), False)
sketch21.addGeometry(Part.ArcOfCircle(Part.Circle(V(0, 12, 0), V(0, 0, 1), 7), math.radians(-50), math.radians(230)), False)
sketch21.addGeometry(Part.LineSegment(V(-4, 7, 0), V(-4, 0, 0)), False)
sketch21.addConstraint(Sketcher.Constraint("Coincident", 0, 2, 1, 1))
sketch21.addConstraint(Sketcher.Constraint("Coincident", 1, 2, 2, 1))
sketch21.addConstraint(Sketcher.Constraint("Coincident", 2, 2, 3, 1))
sketch21.addConstraint(Sketcher.Constraint("Coincident", 3, 2, 0, 1))
sketch21.addConstraint(Sketcher.Constraint("Horizontal", 0))
sketch21.addConstraint(Sketcher.Constraint("Vertical", 1))
sketch21.addConstraint(Sketcher.Constraint("Vertical", 3))
sketch21.addConstraint(Sketcher.Constraint("Symmetric", 0, 2, 3, 2, -1, 1))
sketch21.addConstraint(Sketcher.Constraint("PointOnObject", 2, 3, -2))
sketch21.addConstraint(Sketcher.Constraint("Radius", 2, 7.0))
sketch21.addConstraint(Sketcher.Constraint("DistanceX", 0, 1, 0, 2, 9.0))
sketch21.addConstraint(Sketcher.Constraint("DistanceY", 1, 1, 1, 2, 7.0))
pocket1 = doc.addObject("PartDesign::Pocket", "Pocket")
body.addObject(pocket1)
pocket1.Profile = sketch21
pocket1.Type = "ThroughAll"
pocket1.Midplane = True

# Sketch on XY plane
sketch22 = doc.addObject("Sketcher::SketchObject", "Sketch021")
body.addObject(sketch22)
sketch22.AttachmentSupport = (doc.XY_Plane, [""])
sketch22.MapMode = "FlatFace"
sketch22.addGeometry(Part.LineSegment(V(4, 144, 0), V(-4, 144, 0)), False)
sketch22.addGeometry(Part.LineSegment(V(-4, 144, 0), V(-4, 137, 0)), False)
sketch22.addGeometry(Part.ArcOfCircle(Part.Circle(V(0, 132, 0), V(0, 0, 1), 7), math.radians(130), math.radians(410)), False)
sketch22.addGeometry(Part.LineSegment(V(4, 137, 0), V(4, 144, 0)), False)
sketch22.addConstraint(Sketcher.Constraint("Coincident", 0, 2, 1, 1))
sketch22.addConstraint(Sketcher.Constraint("Coincident", 1, 2, 2, 1))
sketch22.addConstraint(Sketcher.Constraint("Coincident", 2, 2, 3, 1))
sketch22.addConstraint(Sketcher.Constraint("Coincident", 3, 2, 0, 1))
sketch22.addConstraint(Sketcher.Constraint("Horizontal", 0))
sketch22.addConstraint(Sketcher.Constraint("Vertical", 1))
sketch22.addConstraint(Sketcher.Constraint("Vertical", 3))
sketch22.addConstraint(Sketcher.Constraint("Symmetric", 1, 2, 2, 2, -2))
sketch22.addConstraint(Sketcher.Constraint("Radius", 2, 7.0))
sketch22.addConstraint(Sketcher.Constraint("DistanceX", 0, 2, 0, 1, 9.0))
sketch22.addConstraint(Sketcher.Constraint("DistanceY", 1, 2, 1, 1, 7.0))
sketch22.addConstraint(Sketcher.Constraint("DistanceY", -1, 1, 0, 2, 144.0))
pocket2 = doc.addObject("PartDesign::Pocket", "Pocket001")
body.addObject(pocket2)
pocket2.Profile = sketch22
pocket2.Type = "ThroughAll"
pocket2.Midplane = True

# Sketch on XY plane
sketch23 = doc.addObject("Sketcher::SketchObject", "Sketch022")
body.addObject(sketch23)
sketch23.AttachmentSupport = (doc.XY_Plane, [""])
sketch23.MapMode = "FlatFace"
sketch23.addGeometry(Part.LineSegment(V(44, 144, 0), V(36, 144, 0)), False)
sketch23.addGeometry(Part.LineSegment(V(36, 144, 0), V(36, 137, 0)), False)
sketch23.addGeometry(Part.ArcOfCircle(Part.Circle(V(40, 132, 0), V(0, 0, 1), 7), math.radians(130), math.radians(410)), False)
sketch23.addGeometry(Part.LineSegment(V(44, 137, 0), V(44, 144, 0)), False)
sketch23.addConstraint(Sketcher.Constraint("Coincident", 0, 2, 1, 1))
sketch23.addConstraint(Sketcher.Constraint("Coincident", 1, 2, 2, 1))
sketch23.addConstraint(Sketcher.Constraint("Coincident", 2, 2, 3, 1))
sketch23.addConstraint(Sketcher.Constraint("Coincident", 3, 2, 0, 1))
sketch23.addConstraint(Sketcher.Constraint("Horizontal", 0))
sketch23.addConstraint(Sketcher.Constraint("Vertical", 1))
sketch23.addConstraint(Sketcher.Constraint("Vertical", 3))
sketch23.addConstraint(Sketcher.Constraint("Horizontal", 1, 2, 2, 2))
sketch23.addConstraint(Sketcher.Constraint("Radius", 2, 7.0))
sketch23.addConstraint(Sketcher.Constraint("DistanceX", 0, 2, 0, 1, 9.0))
sketch23.addConstraint(Sketcher.Constraint("DistanceY", 1, 2, 1, 1, 7.0))
sketch23.addConstraint(Sketcher.Constraint("DistanceX", -1, 1, 2, 3, 40.0))
sketch23.addConstraint(Sketcher.Constraint("DistanceY", -1, 1, 0, 2, 144.0))
pocket3 = doc.addObject("PartDesign::Pocket", "Pocket002")
body.addObject(pocket3)
pocket3.Profile = sketch23
pocket3.Type = "ThroughAll"
pocket3.Midplane = True

doc.recompute()
